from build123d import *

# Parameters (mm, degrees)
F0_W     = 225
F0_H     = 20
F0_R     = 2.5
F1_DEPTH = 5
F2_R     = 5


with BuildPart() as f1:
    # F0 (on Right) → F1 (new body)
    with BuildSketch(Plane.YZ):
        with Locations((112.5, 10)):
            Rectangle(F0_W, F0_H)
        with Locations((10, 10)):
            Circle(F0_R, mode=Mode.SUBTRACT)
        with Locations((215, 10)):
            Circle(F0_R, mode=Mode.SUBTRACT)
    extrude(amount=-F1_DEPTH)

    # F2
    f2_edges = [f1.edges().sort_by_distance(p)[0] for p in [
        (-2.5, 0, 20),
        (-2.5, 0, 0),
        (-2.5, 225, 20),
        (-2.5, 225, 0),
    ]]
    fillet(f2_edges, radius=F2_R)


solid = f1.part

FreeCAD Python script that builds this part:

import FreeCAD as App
import Part
import Sketcher
from FreeCAD import Vector


def edges_at(feature, points):
    """Names of the edges that pass closest to the given points."""
    edges = feature.Shape.Edges
    near = lambda p: min(range(len(edges)), key=lambda i: edges[i].distToShape(Part.Vertex(*p))[0])
    return sorted({f"Edge{near(p) + 1}" for p in points})

doc = App.newDocument("Part")
body = doc.addObject("PartDesign::Body", "Body")

# Sketch on YZ plane
sketch1 = body.newObject("Sketcher::SketchObject", "Sketch")
sketch1.AttachmentSupport = (doc.getObject("YZ_Plane"), [""])
sketch1.MapMode = "FlatFace"
sketch1.addGeometry([
    Part.LineSegment(Vector(0, 20, 0), Vector(0, 0, 0)),  # 0
    Part.LineSegment(Vector(0, 0, 0), Vector(225, 0, 0)),  # 1
    Part.LineSegment(Vector(225, 0, 0), Vector(225, 20, 0)),  # 2
    Part.LineSegment(Vector(225, 20, 0), Vector(0, 20, 0)),  # 3
    Part.Circle(Vector(10, 10, 0), Vector(0, 0, 1), 2.5),  # 4
    Part.Circle(Vector(215, 10, 0), Vector(0, 0, 1), 2.5),  # 5
], False)
sketch1.addConstraint([
    Sketcher.Constraint("Coincident", 0, 2, 1, 1),
    Sketcher.Constraint("Coincident", 1, 2, 2, 1),
    Sketcher.Constraint("Coincident", 2, 2, 3, 1),
    Sketcher.Constraint("Coincident", 3, 2, 0, 1),
    Sketcher.Constraint("Vertical", 0),
    Sketcher.Constraint("Horizontal", 1),
    Sketcher.Constraint("Vertical", 2),
    Sketcher.Constraint("Horizontal", 3),
    Sketcher.Constraint("Coincident", 0, 2, -1, 1),
    Sketcher.Constraint("Equal", 4, 5),
    Sketcher.Constraint("Horizontal", 4, 3, 5, 3),
    Sketcher.Constraint("Diameter", 4, 5.0),
    Sketcher.Constraint("DistanceX", 1, 1, 1, 2, 225.0),
    Sketcher.Constraint("DistanceY", 0, 2, 0, 1, 20.0),
    Sketcher.Constraint("DistanceX", -1, 1, 4, 3, 10.0),
    Sketcher.Constraint("DistanceY", -1, 1, 4, 3, 10.0),
    Sketcher.Constraint("DistanceX", -1, 1, 5, 3, 215.0),
])
pad1 = body.newObject("PartDesign::Pad", "Pad")
pad1.Profile = sketch1
pad1.Length = 5
pad1.Reversed = True
doc.recompute()

fillet = body.newObject("PartDesign::Fillet", "Fillet")
fillet.Base = (pad1, edges_at(pad1, [
    (-2.5, 0, 20),
    (-2.5, 0, 0),
    (-2.5, 225, 20),
    (-2.5, 225, 0),
]))
fillet.Radius = 5

doc.recompute()
